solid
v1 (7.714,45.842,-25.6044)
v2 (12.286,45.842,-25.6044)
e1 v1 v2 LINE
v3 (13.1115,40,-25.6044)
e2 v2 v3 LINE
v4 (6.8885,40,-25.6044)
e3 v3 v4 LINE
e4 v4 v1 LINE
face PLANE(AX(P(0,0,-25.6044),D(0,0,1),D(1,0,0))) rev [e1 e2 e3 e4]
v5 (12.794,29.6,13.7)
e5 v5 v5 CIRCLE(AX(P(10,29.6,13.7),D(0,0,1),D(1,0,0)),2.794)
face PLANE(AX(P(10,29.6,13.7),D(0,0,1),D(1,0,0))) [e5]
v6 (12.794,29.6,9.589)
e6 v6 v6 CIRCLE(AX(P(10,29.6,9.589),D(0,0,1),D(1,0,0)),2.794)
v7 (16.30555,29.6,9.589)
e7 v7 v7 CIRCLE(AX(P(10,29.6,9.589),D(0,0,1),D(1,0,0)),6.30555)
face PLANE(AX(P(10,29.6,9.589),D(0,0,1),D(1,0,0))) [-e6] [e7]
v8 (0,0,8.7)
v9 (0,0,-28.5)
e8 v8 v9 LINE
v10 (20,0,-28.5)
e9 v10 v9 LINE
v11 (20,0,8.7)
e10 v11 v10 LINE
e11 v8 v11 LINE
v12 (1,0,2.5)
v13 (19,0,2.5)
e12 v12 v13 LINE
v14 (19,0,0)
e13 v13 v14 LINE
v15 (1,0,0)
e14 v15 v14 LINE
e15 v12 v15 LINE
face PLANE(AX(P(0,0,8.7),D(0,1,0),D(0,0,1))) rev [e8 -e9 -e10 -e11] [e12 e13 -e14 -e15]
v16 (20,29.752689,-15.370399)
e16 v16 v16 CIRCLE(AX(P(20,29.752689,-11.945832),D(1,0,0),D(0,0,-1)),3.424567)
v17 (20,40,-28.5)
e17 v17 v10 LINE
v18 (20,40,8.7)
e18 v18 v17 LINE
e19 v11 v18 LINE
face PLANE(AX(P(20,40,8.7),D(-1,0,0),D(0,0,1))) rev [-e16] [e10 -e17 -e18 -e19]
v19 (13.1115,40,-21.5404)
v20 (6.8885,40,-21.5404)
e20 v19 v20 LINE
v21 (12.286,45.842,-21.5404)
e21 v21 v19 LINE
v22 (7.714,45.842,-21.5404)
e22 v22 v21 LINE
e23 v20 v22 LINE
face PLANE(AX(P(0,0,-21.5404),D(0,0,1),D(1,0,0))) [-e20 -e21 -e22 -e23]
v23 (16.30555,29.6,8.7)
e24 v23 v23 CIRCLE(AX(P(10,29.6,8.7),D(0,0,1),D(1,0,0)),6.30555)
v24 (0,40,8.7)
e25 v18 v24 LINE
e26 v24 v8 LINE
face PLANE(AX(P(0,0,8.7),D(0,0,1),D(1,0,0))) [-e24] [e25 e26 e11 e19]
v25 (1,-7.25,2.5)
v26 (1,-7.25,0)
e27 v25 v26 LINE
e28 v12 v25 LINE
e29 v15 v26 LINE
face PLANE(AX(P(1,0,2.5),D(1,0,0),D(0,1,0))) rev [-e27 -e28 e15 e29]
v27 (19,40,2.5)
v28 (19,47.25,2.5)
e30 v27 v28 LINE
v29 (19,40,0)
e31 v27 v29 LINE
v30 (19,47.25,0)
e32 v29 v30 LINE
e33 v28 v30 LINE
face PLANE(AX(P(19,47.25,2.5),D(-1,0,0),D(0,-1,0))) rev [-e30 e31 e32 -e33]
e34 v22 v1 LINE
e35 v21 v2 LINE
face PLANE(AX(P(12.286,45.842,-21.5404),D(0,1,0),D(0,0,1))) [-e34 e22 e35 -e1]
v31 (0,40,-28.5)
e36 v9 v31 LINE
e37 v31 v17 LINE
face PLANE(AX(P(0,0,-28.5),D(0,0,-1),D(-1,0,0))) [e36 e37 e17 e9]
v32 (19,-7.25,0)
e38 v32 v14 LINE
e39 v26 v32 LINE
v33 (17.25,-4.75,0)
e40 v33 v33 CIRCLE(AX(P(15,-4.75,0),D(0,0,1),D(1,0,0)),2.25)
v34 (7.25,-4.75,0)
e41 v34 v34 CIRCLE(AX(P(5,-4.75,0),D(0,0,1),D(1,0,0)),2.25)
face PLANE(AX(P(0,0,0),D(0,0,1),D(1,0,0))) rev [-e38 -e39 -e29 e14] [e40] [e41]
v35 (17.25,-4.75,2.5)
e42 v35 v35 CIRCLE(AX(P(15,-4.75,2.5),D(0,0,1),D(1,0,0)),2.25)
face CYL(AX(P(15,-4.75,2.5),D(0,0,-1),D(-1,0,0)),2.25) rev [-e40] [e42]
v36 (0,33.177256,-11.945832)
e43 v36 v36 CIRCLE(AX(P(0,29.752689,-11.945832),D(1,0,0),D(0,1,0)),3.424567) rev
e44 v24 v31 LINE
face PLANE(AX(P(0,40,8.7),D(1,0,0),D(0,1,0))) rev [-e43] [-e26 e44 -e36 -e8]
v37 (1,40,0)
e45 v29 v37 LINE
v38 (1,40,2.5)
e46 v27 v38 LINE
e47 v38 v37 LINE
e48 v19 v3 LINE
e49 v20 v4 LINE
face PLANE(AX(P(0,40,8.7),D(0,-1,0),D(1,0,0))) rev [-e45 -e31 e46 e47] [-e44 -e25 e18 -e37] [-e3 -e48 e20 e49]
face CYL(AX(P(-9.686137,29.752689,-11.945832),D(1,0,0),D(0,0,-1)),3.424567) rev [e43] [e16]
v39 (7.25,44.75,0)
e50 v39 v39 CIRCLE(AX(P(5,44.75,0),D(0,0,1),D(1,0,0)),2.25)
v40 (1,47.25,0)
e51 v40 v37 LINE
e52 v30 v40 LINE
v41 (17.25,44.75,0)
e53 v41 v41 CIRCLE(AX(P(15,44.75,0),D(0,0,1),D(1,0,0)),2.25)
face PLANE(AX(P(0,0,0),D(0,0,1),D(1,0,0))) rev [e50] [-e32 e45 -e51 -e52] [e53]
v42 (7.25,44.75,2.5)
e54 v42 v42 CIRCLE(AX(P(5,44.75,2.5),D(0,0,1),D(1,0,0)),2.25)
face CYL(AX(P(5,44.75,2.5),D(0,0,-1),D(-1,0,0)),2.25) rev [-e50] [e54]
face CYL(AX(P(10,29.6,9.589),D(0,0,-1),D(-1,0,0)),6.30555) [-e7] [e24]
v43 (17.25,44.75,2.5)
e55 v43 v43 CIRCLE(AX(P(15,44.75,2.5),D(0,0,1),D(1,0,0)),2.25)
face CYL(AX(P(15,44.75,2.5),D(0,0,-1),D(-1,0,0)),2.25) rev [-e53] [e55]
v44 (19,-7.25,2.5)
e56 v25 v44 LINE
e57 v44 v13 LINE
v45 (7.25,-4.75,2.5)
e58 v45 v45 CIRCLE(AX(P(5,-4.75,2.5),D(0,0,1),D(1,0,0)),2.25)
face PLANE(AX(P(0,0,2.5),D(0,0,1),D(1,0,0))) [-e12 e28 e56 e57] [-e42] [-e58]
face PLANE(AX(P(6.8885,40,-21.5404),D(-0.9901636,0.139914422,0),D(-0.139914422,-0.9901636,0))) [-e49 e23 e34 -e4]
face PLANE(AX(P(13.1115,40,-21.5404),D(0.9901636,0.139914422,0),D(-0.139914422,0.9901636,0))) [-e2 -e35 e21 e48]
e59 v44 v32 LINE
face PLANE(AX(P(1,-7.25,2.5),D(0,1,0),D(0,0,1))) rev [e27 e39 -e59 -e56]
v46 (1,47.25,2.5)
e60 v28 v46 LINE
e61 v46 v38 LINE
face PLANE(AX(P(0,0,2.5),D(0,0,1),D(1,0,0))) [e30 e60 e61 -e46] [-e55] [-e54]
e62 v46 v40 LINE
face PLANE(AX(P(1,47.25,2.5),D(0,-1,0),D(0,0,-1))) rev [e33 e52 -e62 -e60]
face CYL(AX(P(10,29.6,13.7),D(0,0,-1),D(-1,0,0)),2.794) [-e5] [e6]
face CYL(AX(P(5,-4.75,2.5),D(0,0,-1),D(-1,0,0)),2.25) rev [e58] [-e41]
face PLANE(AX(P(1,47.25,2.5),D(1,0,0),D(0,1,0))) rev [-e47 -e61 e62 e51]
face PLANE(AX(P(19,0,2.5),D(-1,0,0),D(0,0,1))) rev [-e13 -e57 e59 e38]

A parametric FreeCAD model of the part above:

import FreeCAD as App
import Part
import Sketcher

V = App.Vector
Q = App.Units.Quantity

doc = App.newDocument("Part")
body = doc.addObject("PartDesign::Body", "Body")

sketch1 = doc.addObject("Sketcher::SketchObject", "Sketch")
body.addObject(sketch1)
sketch1.AttachmentSupport = (doc.XY_Plane, [""])
sketch1.MapMode = "FlatFace"
sketch1.addGeometry(Part.LineSegment(V(0, 40, 0), V(0, 0, 0)), False)
sketch1.addGeometry(Part.LineSegment(V(0, 0, 0), V(20, 0, 0)), False)
sketch1.addGeometry(Part.LineSegment(V(20, 0, 0), V(20, 40, 0)), False)
sketch1.addGeometry(Part.LineSegment(V(20, 40, 0), V(0, 40, 0)), False)
sketch1.addConstraint(Sketcher.Constraint("Coincident", 0, 2, 1, 1))
sketch1.addConstraint(Sketcher.Constraint("Coincident", 1, 2, 2, 1))
sketch1.addConstraint(Sketcher.Constraint("Coincident", 2, 2, 3, 1))
sketch1.addConstraint(Sketcher.Constraint("Coincident", 3, 2, 0, 1))
sketch1.addConstraint(Sketcher.Constraint("Vertical", 0))
sketch1.addConstraint(Sketcher.Constraint("Horizontal", 1))
sketch1.addConstraint(Sketcher.Constraint("Vertical", 2))
sketch1.addConstraint(Sketcher.Constraint("Horizontal", 3))
sketch1.addConstraint(Sketcher.Constraint("Coincident", 0, 2, -1, 1))
sketch1.addConstraint(Sketcher.Constraint("DistanceX", 1, 1, 1, 2, Q("20 mm")))
sketch1.addConstraint(Sketcher.Constraint("DistanceY", 0, 2, 0, 1, Q("40 mm")))
pad1 = doc.addObject("PartDesign::Pad", "Pad")
body.addObject(pad1)
pad1.Profile = sketch1
pad1.Length = 8.7

sketch2 = doc.addObject("Sketcher::SketchObject", "Sketch001")
body.addObject(sketch2)
sketch2.AttachmentSupport = (doc.XY_Plane, [""])
sketch2.MapMode = "FlatFace"
sketch2.addGeometry(Part.LineSegment(V(20, 40, 0), V(20, 0, 0)), False)
sketch2.addGeometry(Part.LineSegment(V(20, 0, 0), V(0, 0, 0)), False)
sketch2.addGeometry(Part.LineSegment(V(0, 0, 0), V(0, 40, 0)), False)
sketch2.addGeometry(Part.LineSegment(V(0, 40, 0), V(20, 40, 0)), False)
sketch2.addConstraint(Sketcher.Constraint("Coincident", 0, 2, 1, 1))
sketch2.addConstraint(Sketcher.Constraint("Coincident", 1, 2, 2, 1))
sketch2.addConstraint(Sketcher.Constraint("Coincident", 2, 2, 3, 1))
sketch2.addConstraint(Sketcher.Constraint("Coincident", 3, 2, 0, 1))
sketch2.addConstraint(Sketcher.Constraint("Vertical", 0))
sketch2.addConstraint(Sketcher.Constraint("Horizontal", 1))
sketch2.addConstraint(Sketcher.Constraint("Vertical", 2))
sketch2.addConstraint(Sketcher.Constraint("Horizontal", 3))
sketch2.addConstraint(Sketcher.Constraint("Coincident", 1, 2, -1, 1))
sketch2.addConstraint(Sketcher.Constraint("DistanceX", 1, 2, 1, 1, Q("20 mm")))
sketch2.addConstraint(Sketcher.Constraint("DistanceY", 0, 2, 0, 1, Q("40 mm")))
pad2 = doc.addObject("PartDesign::Pad", "Pad001")
body.addObject(pad2)
pad2.Profile = sketch2
pad2.Length = 28.5
pad2.Reversed = True

sketch3 = doc.addObject("Sketcher::SketchObject", "Sketch002")
body.addObject(sketch3)
sketch3.AttachmentSupport = (doc.XY_Plane, [""])
sketch3.MapMode = "FlatFace"
sketch3.addGeometry(Part.LineSegment(V(19, -7.2, 0), V(19, 0, 0)), False)
sketch3.addGeometry(Part.LineSegment(V(19, 0, 0), V(20, 0, 0)), False)
sketch3.addGeometry(Part.LineSegment(V(20, 0, 0), V(20, 40, 0)), False)
sketch3.addGeometry(Part.LineSegment(V(20, 40, 0), V(19, 40, 0)), False)
sketch3.addGeometry(Part.LineSegment(V(19, 40, 0), V(19, 47.2, 0)), False)
sketch3.addGeometry(Part.LineSegment(V(19, 47.2, 0), V(1, 47.2, 0)), False)
sketch3.addGeometry(Part.LineSegment(V(1, 47.2, 0), V(1, 40, 0)), False)
sketch3.addGeometry(Part.LineSegment(V(1, 40, 0), V(0, 40, 0)), False)
sketch3.addGeometry(Part.LineSegment(V(0, 40, 0), V(0, 0, 0)), False)
sketch3.addGeometry(Part.LineSegment(V(0, 0, 0), V(1, 0, 0)), False)
sketch3.addGeometry(Part.LineSegment(V(1, 0, 0), V(1, -7.2, 0)), False)
sketch3.addGeometry(Part.LineSegment(V(1, -7.2, 0), V(19, -7.2, 0)), False)
sketch3.addGeometry(Part.Circle(V(15, -4.8, 0), V(0, 0, 1), 2.2), False)
sketch3.addGeometry(Part.Circle(V(5, -4.8, 0), V(0, 0, 1), 2.2), False)
sketch3.addGeometry(Part.Circle(V(15, 44.8, 0), V(0, 0, 1), 2.2), False)
sketch3.addGeometry(Part.Circle(V(5, 44.8, 0), V(0, 0, 1), 2.2), False)
sketch3.addConstraint(Sketcher.Constraint("Coincident", 0, 2, 1, 1))
sketch3.addConstraint(Sketcher.Constraint("Coincident", 1, 2, 2, 1))
sketch3.addConstraint(Sketcher.Constraint("Coincident", 2, 2, 3, 1))
sketch3.addConstraint(Sketcher.Constraint("Coincident", 3, 2, 4, 1))
sketch3.addConstraint(Sketcher.Constraint("Coincident", 4, 2, 5, 1))
sketch3.addConstraint(Sketcher.Constraint("Coincident", 5, 2, 6, 1))
sketch3.addConstraint(Sketcher.Constraint("Coincident", 6, 2, 7, 1))
sketch3.addConstraint(Sketcher.Constraint("Coincident", 7, 2, 8, 1))
sketch3.addConstraint(Sketcher.Constraint("Coincident", 8, 2, 9, 1))
sketch3.addConstraint(Sketcher.Constraint("Coincident", 9, 2, 10, 1))
sketch3.addConstraint(Sketcher.Constraint("Coincident", 10, 2, 11, 1))
sketch3.addConstraint(Sketcher.Constraint("Coincident", 11, 2, 0, 1))
sketch3.addConstraint(Sketcher.Constraint("Vertical", 0))
sketch3.addConstraint(Sketcher.Constraint("Horizontal", 1))
sketch3.addConstraint(Sketcher.Constraint("Vertical", 2))
sketch3.addConstraint(Sketcher.Constraint("Horizontal", 3))
sketch3.addConstraint(Sketcher.Constraint("Vertical", 4))
sketch3.addConstraint(Sketcher.Constraint("Horizontal", 5))
sketch3.addConstraint(Sketcher.Constraint("Vertical", 6))
sketch3.addConstraint(Sketcher.Constraint("Horizontal", 7))
sketch3.addConstraint(Sketcher.Constraint("Vertical", 8))
sketch3.addConstraint(Sketcher.Constraint("Horizontal", 9))
sketch3.addConstraint(Sketcher.Constraint("Vertical", 10))
sketch3.addConstraint(Sketcher.Constraint("Horizontal", 11))
sketch3.addConstraint(Sketcher.Constraint("Coincident", 8, 2, -1, 1))
sketch3.addConstraint(Sketcher.Constraint("Equal", 12, 13))
sketch3.addConstraint(Sketcher.Constraint("Equal", 13, 14))
sketch3.addConstraint(Sketcher.Constraint("Equal", 14, 15))
sketch3.addConstraint(Sketcher.Constraint("PointOnObject", 0, 2, -1))
sketch3.addConstraint(Sketcher.Constraint("Horizontal", 12, 3, 13, 3))
sketch3.addConstraint(Sketcher.Constraint("Horizontal", 14, 3, 15, 3))
sketch3.addConstraint(Sketcher.Constraint("Horizontal", 3, 2, 6, 2))
sketch3.addConstraint(Sketcher.Constraint("Vertical", 12, 3, 14, 3))
sketch3.addConstraint(Sketcher.Constraint("Vertical", 13, 3, 15, 3))
sketch3.addConstraint(Sketcher.Constraint("Vertical", 0, 2, 3, 2))
sketch3.addConstraint(Sketcher.Constraint("Vertical", 6, 2, 9, 2))
sketch3.addConstraint(Sketcher.Constraint("Equal", 3, 7))
sketch3.addConstraint(Sketcher.Constraint("Equal", 0, 4))
sketch3.addConstraint(Sketcher.Constraint("Diameter", 12, Q("4.5 mm")))
sketch3.addConstraint(Sketcher.Constraint("DistanceX", 1, 1, 1, 2, Q("1 mm")))
sketch3.addConstraint(Sketcher.Constraint("DistanceX", 5, 2, 5, 1, Q("18 mm")))
sketch3.addConstraint(Sketcher.Constraint("DistanceY", 2, 1, 2, 2, Q("40 mm")))
sketch3.addConstraint(Sketcher.Constraint("DistanceX", -1, 1, 12, 3, Q("15 mm")))
sketch3.addConstraint(Sketcher.Constraint("DistanceX", -1, 1, 13, 3, Q("5 mm")))
sketch3.addConstraint(Sketcher.Constraint("DistanceY", 0, 1, 0, 2, Q("7.25 mm")))
sketch3.addConstraint(Sketcher.Constraint("DistanceY", 12, 3, 14, 3, Q("49.5 mm")))
sketch3.addConstraint(Sketcher.Constraint("DistanceY", 14, 3, 4, 2, Q("2.5 mm")))
pad3 = doc.addObject("PartDesign::Pad", "Pad002")
body.addObject(pad3)
pad3.Profile = sketch3
pad3.Length = 2.5

sketch4 = doc.addObject("Sketcher::SketchObject", "Sketch003")
body.addObject(sketch4)
sketch4.AttachmentSupport = (doc.XY_Plane, [""])
sketch4.MapMode = "FlatFace"
sketch4.AttachmentOffset = App.Placement(V(0, 0, 8.7), App.Rotation())
sketch4.addGeometry(Part.Circle(V(10, 29.6, 0), V(0, 0, 1), 2.8), False)
sketch4.addConstraint(Sketcher.Constraint("Diameter", 0, Q("5.588 mm")))
sketch4.addConstraint(Sketcher.Constraint("DistanceX", -1, 1, 0, 3, Q("10 mm")))
sketch4.addConstraint(Sketcher.Constraint("DistanceY", -1, 1, 0, 3, Q("29.6 mm")))
pad4 = doc.addObject("PartDesign::Pad", "Pad003")
body.addObject(pad4)
pad4.Profile = sketch4
pad4.Length = 5

sketch5 = doc.addObject("Sketcher::SketchObject", "Sketch004")
body.addObject(sketch5)
sketch5.AttachmentSupport = (doc.XY_Plane, [""])
sketch5.MapMode = "FlatFace"
sketch5.AttachmentOffset = App.Placement(V(0, 0, -28.5), App.Rotation())
sketch5.addGeometry(Part.LineSegment(V(13.1, 40, 0), V(6.9, 40, 0)), False)
sketch5.addGeometry(Part.LineSegment(V(6.9, 40, 0), V(7.7, 45.8, 0)), False)
sketch5.addGeometry(Part.LineSegment(V(7.7, 45.8, 0), V(12.3, 45.8, 0)), False)
sketch5.addGeometry(Part.LineSegment(V(12.3, 45.8, 0), V(13.1, 40, 0)), False)
sketch5.addConstraint(Sketcher.Constraint("Coincident", 0, 2, 1, 1))
sketch5.addConstraint(Sketcher.Constraint("Coincident", 1, 2, 2, 1))
sketch5.addConstraint(Sketcher.Constraint("Coincident", 2, 2, 3, 1))
sketch5.addConstraint(Sketcher.Constraint("Coincident", 3, 2, 0, 1))
sketch5.addConstraint(Sketcher.Constraint("Horizontal", 0))
sketch5.addConstraint(Sketcher.Constraint("Horizontal", 2))
sketch5.addConstraint(Sketcher.Constraint("Equal", 1, 3))
sketch5.addConstraint(Sketcher.Constraint("DistanceY", -1, 1, 0, 2, Q("40 mm")))
sketch5.addConstraint(Sketcher.Constraint("DistanceX", 0, 2, 0, 1, Q("6.223 mm")))
sketch5.addConstraint(Sketcher.Constraint("DistanceX", 2, 1, 2, 2, Q("4.572 mm")))
sketch5.addConstraint(Sketcher.Constraint("DistanceX", -1, 1, 1, 2, Q("7.714 mm")))
sketch5.addConstraint(Sketcher.Constraint("DistanceY", -1, 1, 1, 2, Q("45.842 mm")))
pad5 = doc.addObject("PartDesign::Pad", "Pad004")
body.addObject(pad5)
pad5.Profile = sketch5
pad5.Length = 6.9596

sketch6 = doc.addObject("Sketcher::SketchObject", "Sketch005")
body.addObject(sketch6)
sketch6.AttachmentSupport = (doc.XY_Plane, [""])
sketch6.MapMode = "FlatFace"
sketch6.AttachmentOffset = App.Placement(V(0, 0, 8.7), App.Rotation())
sketch6.addGeometry(Part.Circle(V(10, 30, 0), V(0, 0, 1), 6), False)
sketch6.addConstraint(Sketcher.Constraint("DistanceX", -1, 1, 0, 3, Q("10 mm")))
sketch6.addConstraint(Sketcher.Constraint("Diameter", 0, Q("12.6111 mm")))
sketch6.addConstraint(Sketcher.Constraint("DistanceY", -1, 1, 0, 3, Q("29.6 mm")))
pad6 = doc.addObject("PartDesign::Pad", "Pad005")
body.addObject(pad6)
pad6.Profile = sketch6
pad6.Length = 0.889

sketch7 = doc.addObject("Sketcher::SketchObject", "Sketch006")
body.addObject(sketch7)
sketch7.AttachmentSupport = (doc.XY_Plane, [""])
sketch7.MapMode = "FlatFace"
sketch7.AttachmentOffset = App.Placement(V(0, 0, -28.5), App.Rotation())
sketch7.addGeometry(Part.LineSegment(V(7.7, 45.8, 0), V(12.3, 45.8, 0)), False)
sketch7.addGeometry(Part.LineSegment(V(12.3, 45.8, 0), V(13.1, 40, 0)), False)
sketch7.addGeometry(Part.LineSegment(V(13.1, 40, 0), V(6.9, 40, 0)), False)
sketch7.addGeometry(Part.LineSegment(V(6.9, 40, 0), V(7.7, 45.8, 0)), False)
sketch7.addConstraint(Sketcher.Constraint("Coincident", 0, 2, 1, 1))
sketch7.addConstraint(Sketcher.Constraint("Coincident", 1, 2, 2, 1))
sketch7.addConstraint(Sketcher.Constraint("Coincident", 2, 2, 3, 1))
sketch7.addConstraint(Sketcher.Constraint("Coincident", 3, 2, 0, 1))
sketch7.addConstraint(Sketcher.Constraint("Horizontal", 0))
sketch7.addConstraint(Sketcher.Constraint("Horizontal", 2))
sketch7.addConstraint(Sketcher.Constraint("Equal", 1, 3))
sketch7.addConstraint(Sketcher.Constraint("DistanceY", -1, 1, 1, 2, Q("40 mm")))
sketch7.addConstraint(Sketcher.Constraint("DistanceX", 0, 1, 0, 2, Q("4.572 mm")))
sketch7.addConstraint(Sketcher.Constraint("DistanceX", 2, 2, 2, 1, Q("6.223 mm")))
sketch7.addConstraint(Sketcher.Constraint("DistanceX", -1, 1, 0, 2, Q("12.286 mm")))
sketch7.addConstraint(Sketcher.Constraint("DistanceY", -1, 1, 0, 2, Q("45.842 mm")))
pocket1 = doc.addObject("PartDesign::Pocket", "Pocket")
body.addObject(pocket1)
pocket1.Profile = sketch7
pocket1.Length = 2.8956
pocket1.Reversed = True

sketch8 = doc.addObject("Sketcher::SketchObject", "Sketch007")
body.addObject(sketch8)
sketch8.AttachmentSupport = (doc.YZ_Plane, [""])
sketch8.MapMode = "FlatFace"
sketch8.AttachmentOffset = App.Placement(V(0, 0, 20), App.Rotation())
sketch8.addGeometry(Part.Circle(V(29.8, -11.9, 0), V(0, 0, 1), 3.4), False)
sketch8.addConstraint(Sketcher.Constraint("Diameter", 0, Q("6.849133 mm")))
sketch8.addConstraint(Sketcher.Constraint("DistanceX", -1, 1, 0, 3, Q("29.752689 mm")))
sketch8.addConstraint(Sketcher.Constraint("DistanceY", 0, 3, -1, 1, Q("11.945832 mm")))
pocket2 = doc.addObject("PartDesign::Pocket", "Pocket001")
body.addObject(pocket2)
pocket2.Profile = sketch8
pocket2.Length = 20

doc.recompute()
